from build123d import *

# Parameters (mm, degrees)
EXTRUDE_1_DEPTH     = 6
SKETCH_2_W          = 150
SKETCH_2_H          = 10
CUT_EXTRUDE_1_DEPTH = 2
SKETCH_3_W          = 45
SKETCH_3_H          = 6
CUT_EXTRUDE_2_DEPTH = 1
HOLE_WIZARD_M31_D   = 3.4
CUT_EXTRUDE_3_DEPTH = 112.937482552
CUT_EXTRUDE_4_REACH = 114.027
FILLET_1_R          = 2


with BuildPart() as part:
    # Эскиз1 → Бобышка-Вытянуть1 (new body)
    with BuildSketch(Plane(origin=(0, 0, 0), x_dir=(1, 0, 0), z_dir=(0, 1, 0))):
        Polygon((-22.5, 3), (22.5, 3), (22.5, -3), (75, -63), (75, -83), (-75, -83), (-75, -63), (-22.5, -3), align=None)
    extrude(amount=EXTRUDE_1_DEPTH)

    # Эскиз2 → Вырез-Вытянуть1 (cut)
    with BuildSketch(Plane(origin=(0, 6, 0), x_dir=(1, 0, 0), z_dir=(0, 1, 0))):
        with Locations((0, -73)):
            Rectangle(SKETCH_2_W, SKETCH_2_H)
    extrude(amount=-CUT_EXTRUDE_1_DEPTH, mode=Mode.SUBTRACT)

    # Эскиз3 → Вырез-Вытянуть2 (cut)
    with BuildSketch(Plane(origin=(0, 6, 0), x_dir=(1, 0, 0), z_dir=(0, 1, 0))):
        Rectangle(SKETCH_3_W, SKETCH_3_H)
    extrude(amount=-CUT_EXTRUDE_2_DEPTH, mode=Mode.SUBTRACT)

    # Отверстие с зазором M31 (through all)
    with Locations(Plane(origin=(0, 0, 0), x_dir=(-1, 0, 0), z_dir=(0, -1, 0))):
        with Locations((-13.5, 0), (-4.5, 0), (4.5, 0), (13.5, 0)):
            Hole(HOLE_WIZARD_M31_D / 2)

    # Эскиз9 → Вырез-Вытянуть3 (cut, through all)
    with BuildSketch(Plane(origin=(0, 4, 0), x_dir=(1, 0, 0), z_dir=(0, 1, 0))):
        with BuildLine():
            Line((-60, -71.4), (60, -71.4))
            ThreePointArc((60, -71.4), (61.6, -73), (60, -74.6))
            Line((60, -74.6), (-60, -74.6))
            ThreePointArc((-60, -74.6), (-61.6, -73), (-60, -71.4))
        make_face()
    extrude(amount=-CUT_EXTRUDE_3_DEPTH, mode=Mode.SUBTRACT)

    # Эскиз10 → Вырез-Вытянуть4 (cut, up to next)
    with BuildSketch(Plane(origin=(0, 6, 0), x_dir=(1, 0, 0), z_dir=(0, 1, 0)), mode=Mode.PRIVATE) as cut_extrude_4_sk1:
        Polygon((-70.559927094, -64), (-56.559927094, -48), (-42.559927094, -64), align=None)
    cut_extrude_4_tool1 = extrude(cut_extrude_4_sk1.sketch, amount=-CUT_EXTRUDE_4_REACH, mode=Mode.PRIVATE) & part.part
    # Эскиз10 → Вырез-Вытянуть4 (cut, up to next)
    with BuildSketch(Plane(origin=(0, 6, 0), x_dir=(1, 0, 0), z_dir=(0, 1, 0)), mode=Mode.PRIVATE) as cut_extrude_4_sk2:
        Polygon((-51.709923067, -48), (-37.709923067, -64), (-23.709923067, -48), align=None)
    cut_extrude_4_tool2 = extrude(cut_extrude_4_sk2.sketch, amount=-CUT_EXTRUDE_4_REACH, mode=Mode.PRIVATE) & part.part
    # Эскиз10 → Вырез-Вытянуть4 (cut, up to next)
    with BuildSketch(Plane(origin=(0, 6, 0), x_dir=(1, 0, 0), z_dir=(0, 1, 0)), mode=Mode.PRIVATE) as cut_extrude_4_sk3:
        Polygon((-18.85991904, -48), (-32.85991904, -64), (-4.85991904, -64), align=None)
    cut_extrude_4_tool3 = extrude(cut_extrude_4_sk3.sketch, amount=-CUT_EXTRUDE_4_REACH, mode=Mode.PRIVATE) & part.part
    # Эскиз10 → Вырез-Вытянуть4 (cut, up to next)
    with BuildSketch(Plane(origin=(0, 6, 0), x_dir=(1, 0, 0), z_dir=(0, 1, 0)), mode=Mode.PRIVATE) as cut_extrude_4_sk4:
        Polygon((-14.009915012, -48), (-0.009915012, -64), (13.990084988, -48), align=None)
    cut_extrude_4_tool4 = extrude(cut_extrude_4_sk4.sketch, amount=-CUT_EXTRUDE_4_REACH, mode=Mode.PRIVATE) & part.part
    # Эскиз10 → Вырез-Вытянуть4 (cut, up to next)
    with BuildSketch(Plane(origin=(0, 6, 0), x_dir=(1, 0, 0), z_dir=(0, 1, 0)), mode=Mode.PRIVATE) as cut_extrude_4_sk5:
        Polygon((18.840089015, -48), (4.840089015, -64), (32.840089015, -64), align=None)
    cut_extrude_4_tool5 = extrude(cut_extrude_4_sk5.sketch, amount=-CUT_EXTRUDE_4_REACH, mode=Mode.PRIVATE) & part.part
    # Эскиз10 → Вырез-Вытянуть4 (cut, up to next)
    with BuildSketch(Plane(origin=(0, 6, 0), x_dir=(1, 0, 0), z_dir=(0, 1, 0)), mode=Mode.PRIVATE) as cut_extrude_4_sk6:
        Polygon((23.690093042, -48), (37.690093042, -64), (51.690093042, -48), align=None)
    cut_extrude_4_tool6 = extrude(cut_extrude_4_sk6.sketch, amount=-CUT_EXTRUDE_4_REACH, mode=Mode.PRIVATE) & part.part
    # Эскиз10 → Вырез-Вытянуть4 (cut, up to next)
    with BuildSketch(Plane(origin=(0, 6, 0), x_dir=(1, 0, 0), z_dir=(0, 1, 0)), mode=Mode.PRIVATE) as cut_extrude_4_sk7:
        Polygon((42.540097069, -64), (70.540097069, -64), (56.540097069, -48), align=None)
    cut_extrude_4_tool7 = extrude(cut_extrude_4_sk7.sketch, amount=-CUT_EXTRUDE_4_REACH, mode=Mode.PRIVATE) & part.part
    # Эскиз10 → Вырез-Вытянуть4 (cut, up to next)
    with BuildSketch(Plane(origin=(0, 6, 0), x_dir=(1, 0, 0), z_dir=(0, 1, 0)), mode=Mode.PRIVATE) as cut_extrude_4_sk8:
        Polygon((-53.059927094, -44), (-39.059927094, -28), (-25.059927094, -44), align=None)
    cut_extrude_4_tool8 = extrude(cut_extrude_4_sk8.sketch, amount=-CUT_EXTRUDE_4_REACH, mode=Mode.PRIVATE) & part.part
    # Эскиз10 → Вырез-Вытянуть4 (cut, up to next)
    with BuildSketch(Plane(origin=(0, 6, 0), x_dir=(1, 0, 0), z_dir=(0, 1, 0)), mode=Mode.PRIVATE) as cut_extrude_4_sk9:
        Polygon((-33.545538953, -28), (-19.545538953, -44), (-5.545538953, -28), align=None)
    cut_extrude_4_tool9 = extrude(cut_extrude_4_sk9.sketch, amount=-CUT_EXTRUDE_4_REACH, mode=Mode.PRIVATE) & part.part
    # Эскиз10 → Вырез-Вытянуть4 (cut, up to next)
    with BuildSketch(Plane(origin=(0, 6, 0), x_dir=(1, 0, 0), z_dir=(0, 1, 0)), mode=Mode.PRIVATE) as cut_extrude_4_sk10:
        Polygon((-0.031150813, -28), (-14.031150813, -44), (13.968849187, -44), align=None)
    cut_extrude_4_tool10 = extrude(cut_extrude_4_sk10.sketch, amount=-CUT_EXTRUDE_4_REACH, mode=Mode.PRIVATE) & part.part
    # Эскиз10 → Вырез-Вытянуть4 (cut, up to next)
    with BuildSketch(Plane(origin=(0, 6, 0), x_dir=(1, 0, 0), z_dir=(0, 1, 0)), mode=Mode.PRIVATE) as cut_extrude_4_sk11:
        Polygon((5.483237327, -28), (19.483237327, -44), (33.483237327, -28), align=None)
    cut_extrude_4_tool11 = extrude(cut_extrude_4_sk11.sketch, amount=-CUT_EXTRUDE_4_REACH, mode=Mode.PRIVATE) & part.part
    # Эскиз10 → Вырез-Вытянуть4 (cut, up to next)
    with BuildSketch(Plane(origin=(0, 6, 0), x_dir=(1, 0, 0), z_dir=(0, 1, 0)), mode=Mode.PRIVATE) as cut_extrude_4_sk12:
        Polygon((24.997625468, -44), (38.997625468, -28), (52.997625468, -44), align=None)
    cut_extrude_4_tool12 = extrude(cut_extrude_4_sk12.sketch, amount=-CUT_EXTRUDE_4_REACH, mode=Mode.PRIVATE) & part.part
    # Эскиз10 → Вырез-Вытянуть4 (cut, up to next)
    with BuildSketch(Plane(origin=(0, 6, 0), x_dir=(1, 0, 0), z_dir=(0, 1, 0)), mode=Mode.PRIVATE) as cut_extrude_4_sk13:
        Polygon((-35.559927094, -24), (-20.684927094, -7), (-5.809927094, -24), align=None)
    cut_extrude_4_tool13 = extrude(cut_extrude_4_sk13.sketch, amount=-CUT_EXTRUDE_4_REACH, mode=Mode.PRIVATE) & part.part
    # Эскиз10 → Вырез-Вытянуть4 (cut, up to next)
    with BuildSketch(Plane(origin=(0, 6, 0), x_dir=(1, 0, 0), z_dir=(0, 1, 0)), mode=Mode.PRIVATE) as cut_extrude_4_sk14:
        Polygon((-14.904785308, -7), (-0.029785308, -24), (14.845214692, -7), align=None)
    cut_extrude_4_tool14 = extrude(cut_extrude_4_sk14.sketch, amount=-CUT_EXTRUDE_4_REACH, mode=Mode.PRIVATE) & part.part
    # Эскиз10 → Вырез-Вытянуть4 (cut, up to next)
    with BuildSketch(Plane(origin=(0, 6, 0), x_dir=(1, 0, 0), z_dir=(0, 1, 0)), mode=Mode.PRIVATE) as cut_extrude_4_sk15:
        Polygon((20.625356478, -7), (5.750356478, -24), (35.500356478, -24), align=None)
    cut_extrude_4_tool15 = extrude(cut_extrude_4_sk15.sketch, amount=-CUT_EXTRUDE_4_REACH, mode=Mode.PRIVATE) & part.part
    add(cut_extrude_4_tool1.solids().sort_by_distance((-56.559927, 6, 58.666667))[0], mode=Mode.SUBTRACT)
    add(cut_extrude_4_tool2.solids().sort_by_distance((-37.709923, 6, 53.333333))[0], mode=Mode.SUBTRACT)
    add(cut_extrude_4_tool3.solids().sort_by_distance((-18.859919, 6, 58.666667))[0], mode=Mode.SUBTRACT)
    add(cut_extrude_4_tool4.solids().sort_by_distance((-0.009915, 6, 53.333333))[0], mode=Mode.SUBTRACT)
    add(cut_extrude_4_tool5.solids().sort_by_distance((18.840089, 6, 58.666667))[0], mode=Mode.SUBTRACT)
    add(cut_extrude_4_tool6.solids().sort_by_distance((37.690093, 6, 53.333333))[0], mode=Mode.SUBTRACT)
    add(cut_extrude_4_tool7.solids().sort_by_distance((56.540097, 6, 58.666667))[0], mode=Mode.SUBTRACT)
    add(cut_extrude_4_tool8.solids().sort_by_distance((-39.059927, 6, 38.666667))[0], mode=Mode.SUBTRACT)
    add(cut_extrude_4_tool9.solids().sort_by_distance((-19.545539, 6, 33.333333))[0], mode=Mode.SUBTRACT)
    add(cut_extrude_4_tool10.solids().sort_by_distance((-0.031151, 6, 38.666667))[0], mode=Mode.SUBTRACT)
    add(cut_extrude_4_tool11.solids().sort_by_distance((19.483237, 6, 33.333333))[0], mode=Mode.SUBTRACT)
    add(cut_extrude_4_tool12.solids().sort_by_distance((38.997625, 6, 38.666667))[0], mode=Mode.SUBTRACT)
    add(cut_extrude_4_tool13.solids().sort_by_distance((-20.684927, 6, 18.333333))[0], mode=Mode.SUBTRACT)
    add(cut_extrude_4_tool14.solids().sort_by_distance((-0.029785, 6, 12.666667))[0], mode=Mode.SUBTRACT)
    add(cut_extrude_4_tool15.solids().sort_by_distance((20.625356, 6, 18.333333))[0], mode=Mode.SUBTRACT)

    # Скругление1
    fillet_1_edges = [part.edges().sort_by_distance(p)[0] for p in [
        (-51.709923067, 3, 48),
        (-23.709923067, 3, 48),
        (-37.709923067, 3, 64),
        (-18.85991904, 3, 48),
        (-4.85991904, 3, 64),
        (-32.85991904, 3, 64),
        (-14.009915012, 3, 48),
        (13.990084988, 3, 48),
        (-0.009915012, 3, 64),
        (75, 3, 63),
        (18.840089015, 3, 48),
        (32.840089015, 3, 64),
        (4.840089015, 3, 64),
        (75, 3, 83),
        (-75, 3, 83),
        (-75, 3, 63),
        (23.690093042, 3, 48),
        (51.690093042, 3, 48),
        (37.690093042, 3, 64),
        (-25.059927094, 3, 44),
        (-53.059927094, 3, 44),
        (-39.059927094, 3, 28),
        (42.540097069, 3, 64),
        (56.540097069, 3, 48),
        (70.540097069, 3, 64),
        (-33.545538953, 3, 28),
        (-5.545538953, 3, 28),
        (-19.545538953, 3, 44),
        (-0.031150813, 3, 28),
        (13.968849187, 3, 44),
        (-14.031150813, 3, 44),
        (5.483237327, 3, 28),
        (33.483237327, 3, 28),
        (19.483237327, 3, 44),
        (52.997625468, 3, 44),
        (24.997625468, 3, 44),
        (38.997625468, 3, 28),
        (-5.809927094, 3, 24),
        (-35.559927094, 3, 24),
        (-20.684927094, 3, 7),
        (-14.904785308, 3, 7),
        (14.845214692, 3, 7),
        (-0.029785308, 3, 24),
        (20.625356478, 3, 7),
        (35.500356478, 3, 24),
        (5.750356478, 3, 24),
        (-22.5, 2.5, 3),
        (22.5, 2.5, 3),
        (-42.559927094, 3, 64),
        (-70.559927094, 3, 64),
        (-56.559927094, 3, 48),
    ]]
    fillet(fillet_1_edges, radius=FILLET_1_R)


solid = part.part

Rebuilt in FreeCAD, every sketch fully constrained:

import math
import FreeCAD as App
import Part
import Sketcher

V = App.Vector
Q = App.Units.Quantity


def edges_at(feature, points):
    """Names of the edges that pass closest to the given points."""
    edges = feature.Shape.Edges
    near = lambda p: min(range(len(edges)), key=lambda i: edges[i].distToShape(Part.Vertex(*p))[0])
    return sorted({f"Edge{near(p) + 1}" for p in points})


def add_polygon(sketch, points):
    """Adds a closed chain of lines whose ends are joined by coincident constraints."""
    first, n = sketch.GeometryCount, len(points)
    for a, b in zip(points, points[1:] + points[:1]):
        sketch.addGeometry(Part.LineSegment(App.Vector(*a, 0), App.Vector(*b, 0)), False)
    for i in range(n):
        sketch.addConstraint(Sketcher.Constraint("Coincident", first + i, 2, first + (i + 1) % n, 1))

doc = App.newDocument("Part")
body = doc.addObject("PartDesign::Body", "Body")

# Sketch on XZ plane
sketch1 = doc.addObject("Sketcher::SketchObject", "Sketch")
body.addObject(sketch1)
sketch1.AttachmentSupport = (doc.XZ_Plane, [""])
sketch1.MapMode = "FlatFace"
add_polygon(sketch1, [(22, -3), (-22, -3), (-22, 3), (-75, 63), (-75, 83), (75, 83), (75, 63), (22, 3)])  # lines 0-7
sketch1.addConstraint([
    Sketcher.Constraint("Horizontal", 0),
    Sketcher.Constraint("Vertical", 1),
    Sketcher.Constraint("Vertical", 3),
    Sketcher.Constraint("Horizontal", 4),
    Sketcher.Constraint("Vertical", 5),
    Sketcher.Constraint("Vertical", 7),
    Sketcher.Constraint("Symmetric", 0, 2, 6, 2, -1, 1),
    Sketcher.Constraint("Symmetric", 2, 2, 5, 2, -2),
    Sketcher.Constraint("Horizontal", 1, 2, 6, 2),
    Sketcher.Constraint("DistanceX", 0, 2, 0, 1, Q("45 mm")),
    Sketcher.Constraint("DistanceX", 4, 1, 4, 2, Q("150 mm")),
    Sketcher.Constraint("DistanceY", 1, 1, 1, 2, Q("6 mm")),
    Sketcher.Constraint("DistanceY", 3, 1, 3, 2, Q("20 mm")),
    Sketcher.Constraint("DistanceY", -1, 1, 2, 2, Q("63 mm")),
])
pad1 = doc.addObject("PartDesign::Pad", "Pad")
body.addObject(pad1)
pad1.Profile = sketch1
pad1.Length = 6
pad1.Reversed = True

# Sketch on XZ plane
sketch2 = doc.addObject("Sketcher::SketchObject", "Sketch001")
body.addObject(sketch2)
sketch2.AttachmentSupport = (doc.XZ_Plane, [""])
sketch2.MapMode = "FlatFace"
sketch2.AttachmentOffset = App.Placement(V(0, 0, -6), App.Rotation())
add_polygon(sketch2, [(-75, 68), (-75, 78), (75, 78), (75, 68)])  # lines 0-3
sketch2.addConstraint([
    Sketcher.Constraint("Vertical", 0),
    Sketcher.Constraint("Horizontal", 1),
    Sketcher.Constraint("Vertical", 2),
    Sketcher.Constraint("Horizontal", 3),
    Sketcher.Constraint("DistanceX", 1, 1, 1, 2, Q("150 mm")),
    Sketcher.Constraint("DistanceY", 0, 1, 0, 2, Q("10 mm")),
    Sketcher.Constraint("DistanceX", 0, 2, -1, 1, Q("75 mm")),
    Sketcher.Constraint("DistanceY", -1, 1, 0, 2, Q("78 mm")),
])
pocket1 = doc.addObject("PartDesign::Pocket", "Pocket")
body.addObject(pocket1)
pocket1.Profile = sketch2
pocket1.Length = 2
pocket1.Reversed = True

# Sketch on XZ plane
sketch3 = doc.addObject("Sketcher::SketchObject", "Sketch002")
body.addObject(sketch3)
sketch3.AttachmentSupport = (doc.XZ_Plane, [""])
sketch3.MapMode = "FlatFace"
sketch3.AttachmentOffset = App.Placement(V(0, 0, -6), App.Rotation())
add_polygon(sketch3, [(-22, -3), (-22, 3), (22, 3), (22, -3)])  # lines 0-3
sketch3.addConstraint([
    Sketcher.Constraint("Vertical", 0),
    Sketcher.Constraint("Horizontal", 1),
    Sketcher.Constraint("Vertical", 2),
    Sketcher.Constraint("Horizontal", 3),
    Sketcher.Constraint("Symmetric", 0, 2, 2, 2, -1, 1),
    Sketcher.Constraint("DistanceX", 1, 1, 1, 2, Q("45 mm")),
    Sketcher.Constraint("DistanceY", 0, 1, 0, 2, Q("6 mm")),
])
pocket2 = doc.addObject("PartDesign::Pocket", "Pocket001")
body.addObject(pocket2)
pocket2.Profile = sketch3
pocket2.Length = 1
pocket2.Reversed = True

# Sketch on XZ plane
sketch4 = doc.addObject("Sketcher::SketchObject", "Sketch003")
body.addObject(sketch4)
sketch4.AttachmentSupport = (doc.XZ_Plane, [""])
sketch4.MapMode = "FlatFace"
sketch4.addGeometry([
    Part.Circle(V(13.5, 0, 0), V(0, 0, 1), 1.7),
    Part.Circle(V(4.5, 0, 0), V(0, 0, 1), 1.7),
    Part.Circle(V(-4.5, 0, 0), V(0, 0, 1), 1.7),
    Part.Circle(V(-13.5, 0, 0), V(0, 0, 1), 1.7),
], False)
sketch4.addConstraint([
    Sketcher.Constraint("Equal", 0, 1),
    Sketcher.Constraint("Equal", 1, 2),
    Sketcher.Constraint("Equal", 2, 3),
    Sketcher.Constraint("Symmetric", 1, 3, 2, 3, -1, 1),
    Sketcher.Constraint("Symmetric", 0, 3, 3, 3, -1, 1),
    Sketcher.Constraint("PointOnObject", 0, 3, -1),
    Sketcher.Constraint("PointOnObject", 1, 3, -1),
    Sketcher.Constraint("Diameter", 0, Q("3.4 mm")),
    Sketcher.Constraint("DistanceX", 1, 3, 0, 3, Q("9 mm")),
    Sketcher.Constraint("DistanceX", 2, 3, 1, 3, Q("9 mm")),
])
doc.recompute()
hole = doc.addObject("PartDesign::Hole", "Hole")
body.addObject(hole)
hole.Profile = sketch4
hole.ThreadType = "None"
hole.Diameter = 3.4
hole.DepthType = "ThroughAll"

# Sketch on XZ plane
sketch5 = doc.addObject("Sketcher::SketchObject", "Sketch004")
body.addObject(sketch5)
sketch5.AttachmentSupport = (doc.XZ_Plane, [""])
sketch5.MapMode = "FlatFace"
sketch5.AttachmentOffset = App.Placement(V(0, 0, -4), App.Rotation())
sketch5.addGeometry([
    Part.LineSegment(V(60, 71.4, 0), V(-60, 71.4, 0)),
    Part.ArcOfCircle(Part.Circle(V(-60, 73, 0), V(0, 0, 1), 1.6), math.radians(90), math.radians(270)),
    Part.LineSegment(V(-60, 74.6, 0), V(60, 74.6, 0)),
    Part.ArcOfCircle(Part.Circle(V(60, 73, 0), V(0, 0, 1), 1.6), math.radians(-90), math.radians(90)),
], False)
sketch5.addConstraint([
    Sketcher.Constraint("Tangent", 0, 2, 1, 2),
    Sketcher.Constraint("Tangent", 1, 1, 2, 1),
    Sketcher.Constraint("Tangent", 2, 2, 3, 2),
    Sketcher.Constraint("Tangent", 3, 1, 0, 1),
    Sketcher.Constraint("Horizontal", 0),
    Sketcher.Constraint("Horizontal", 2),
    Sketcher.Constraint("Radius", 1, Q("1.6 mm")),
    Sketcher.Constraint("DistanceX", 0, 2, 0, 1, Q("120 mm")),
    Sketcher.Constraint("DistanceX", 1, 3, -1, 1, Q("60 mm")),
    Sketcher.Constraint("DistanceY", -1, 1, 1, 3, Q("73 mm")),
])
pocket3 = doc.addObject("PartDesign::Pocket", "Pocket002")
body.addObject(pocket3)
pocket3.Profile = sketch5
pocket3.Type = "ThroughAll"
pocket3.Reversed = True

# Sketch on XZ plane
sketch6 = doc.addObject("Sketcher::SketchObject", "Sketch005")
body.addObject(sketch6)
sketch6.AttachmentSupport = (doc.XZ_Plane, [""])
sketch6.MapMode = "FlatFace"
sketch6.AttachmentOffset = App.Placement(V(0, 0, -6), App.Rotation())
add_polygon(sketch6, [(-57, 48), (-71, 64), (-43, 64)])  # lines 0-2
sketch6.addConstraint([
    Sketcher.Constraint("Horizontal", 1),
    Sketcher.Constraint("Equal", 0, 2),
    Sketcher.Constraint("DistanceX", 1, 1, 1, 2, Q("28 mm")),
    Sketcher.Constraint("DistanceY", -1, 1, 0, 2, Q("64 mm")),
    Sketcher.Constraint("DistanceY", -1, 1, 2, 2, Q("48 mm")),
    Sketcher.Constraint("DistanceX", 0, 2, -1, 1, Q("70.559927 mm")),
])
pocket4 = doc.addObject("PartDesign::Pocket", "Pocket003")
body.addObject(pocket4)
pocket4.Profile = sketch6
pocket4.Type = "UpToFirst"
pocket4.Reversed = True

# Sketch on XZ plane
sketch7 = doc.addObject("Sketcher::SketchObject", "Sketch006")
body.addObject(sketch7)
sketch7.AttachmentSupport = (doc.XZ_Plane, [""])
sketch7.MapMode = "FlatFace"
sketch7.AttachmentOffset = App.Placement(V(0, 0, -6), App.Rotation())
add_polygon(sketch7, [(-52, 48), (-38, 64), (-24, 48)])  # lines 0-2
sketch7.addConstraint([
    Sketcher.Constraint("Horizontal", 2),
    Sketcher.Constraint("Equal", 0, 1),
    Sketcher.Constraint("DistanceX", 2, 2, 2, 1, Q("28 mm")),
    Sketcher.Constraint("DistanceY", -1, 1, 0, 2, Q("64 mm")),
    Sketcher.Constraint("DistanceY", -1, 1, 1, 2, Q("48 mm")),
    Sketcher.Constraint("DistanceX", 0, 2, -1, 1, Q("37.709923 mm")),
])
pocket5 = doc.addObject("PartDesign::Pocket", "Pocket004")
body.addObject(pocket5)
pocket5.Profile = sketch7
pocket5.Type = "UpToFirst"
pocket5.Reversed = True

# Sketch on XZ plane
sketch8 = doc.addObject("Sketcher::SketchObject", "Sketch007")
body.addObject(sketch8)
sketch8.AttachmentSupport = (doc.XZ_Plane, [""])
sketch8.MapMode = "FlatFace"
sketch8.AttachmentOffset = App.Placement(V(0, 0, -6), App.Rotation())
add_polygon(sketch8, [(-19, 48), (-33, 64), (-5, 64)])  # lines 0-2
sketch8.addConstraint([
    Sketcher.Constraint("Horizontal", 1),
    Sketcher.Constraint("Equal", 0, 2),
    Sketcher.Constraint("DistanceX", 1, 1, 1, 2, Q("28 mm")),
    Sketcher.Constraint("DistanceY", -1, 1, 0, 2, Q("64 mm")),
    Sketcher.Constraint("DistanceY", -1, 1, 2, 2, Q("48 mm")),
    Sketcher.Constraint("DistanceX", 0, 2, -1, 1, Q("32.859919 mm")),
])
pocket6 = doc.addObject("PartDesign::Pocket", "Pocket005")
body.addObject(pocket6)
pocket6.Profile = sketch8
pocket6.Type = "UpToFirst"
pocket6.Reversed = True

# Sketch on XZ plane
sketch9 = doc.addObject("Sketcher::SketchObject", "Sketch008")
body.addObject(sketch9)
sketch9.AttachmentSupport = (doc.XZ_Plane, [""])
sketch9.MapMode = "FlatFace"
sketch9.AttachmentOffset = App.Placement(V(0, 0, -6), App.Rotation())
add_polygon(sketch9, [(-14, 48), (0, 64), (14, 48)])  # lines 0-2
sketch9.addConstraint([
    Sketcher.Constraint("Horizontal", 2),
    Sketcher.Constraint("Equal", 0, 1),
    Sketcher.Constraint("DistanceX", 2, 2, 2, 1, Q("28 mm")),
    Sketcher.Constraint("DistanceY", -1, 1, 0, 2, Q("64 mm")),
    Sketcher.Constraint("DistanceY", -1, 1, 1, 2, Q("48 mm")),
    Sketcher.Constraint("DistanceX", 0, 2, -1, 1, Q("0.009915 mm")),
])
pocket7 = doc.addObject("PartDesign::Pocket", "Pocket006")
body.addObject(pocket7)
pocket7.Profile = sketch9
pocket7.Type = "UpToFirst"
pocket7.Reversed = True

# Sketch on XZ plane
sketch10 = doc.addObject("Sketcher::SketchObject", "Sketch009")
body.addObject(sketch10)
sketch10.AttachmentSupport = (doc.XZ_Plane, [""])
sketch10.MapMode = "FlatFace"
sketch10.AttachmentOffset = App.Placement(V(0, 0, -6), App.Rotation())
add_polygon(sketch10, [(19, 48), (5, 64), (33, 64)])  # lines 0-2
sketch10.addConstraint([
    Sketcher.Constraint("Horizontal", 1),
    Sketcher.Constraint("Equal", 0, 2),
    Sketcher.Constraint("DistanceX", 1, 1, 1, 2, Q("28 mm")),
    Sketcher.Constraint("DistanceY", -1, 1, 0, 2, Q("64 mm")),
    Sketcher.Constraint("DistanceY", -1, 1, 2, 2, Q("48 mm")),
    Sketcher.Constraint("DistanceX", -1, 1, 0, 2, Q("4.840089 mm")),
])
pocket8 = doc.addObject("PartDesign::Pocket", "Pocket007")
body.addObject(pocket8)
pocket8.Profile = sketch10
pocket8.Type = "UpToFirst"
pocket8.Reversed = True

# Sketch on XZ plane
sketch11 = doc.addObject("Sketcher::SketchObject", "Sketch010")
body.addObject(sketch11)
sketch11.AttachmentSupport = (doc.XZ_Plane, [""])
sketch11.MapMode = "FlatFace"
sketch11.AttachmentOffset = App.Placement(V(0, 0, -6), App.Rotation())
add_polygon(sketch11, [(24, 48), (38, 64), (52, 48)])  # lines 0-2
sketch11.addConstraint([
    Sketcher.Constraint("Horizontal", 2),
    Sketcher.Constraint("Equal", 0, 1),
    Sketcher.Constraint("DistanceX", 2, 2, 2, 1, Q("28 mm")),
    Sketcher.Constraint("DistanceY", -1, 1, 0, 2, Q("64 mm")),
    Sketcher.Constraint("DistanceY", -1, 1, 1, 2, Q("48 mm")),
    Sketcher.Constraint("DistanceX", -1, 1, 0, 2, Q("37.690093 mm")),
])
pocket9 = doc.addObject("PartDesign::Pocket", "Pocket008")
body.addObject(pocket9)
pocket9.Profile = sketch11
pocket9.Type = "UpToFirst"
pocket9.Reversed = True

# Sketch on XZ plane
sketch12 = doc.addObject("Sketcher::SketchObject", "Sketch011")
body.addObject(sketch12)
sketch12.AttachmentSupport = (doc.XZ_Plane, [""])
sketch12.MapMode = "FlatFace"
sketch12.AttachmentOffset = App.Placement(V(0, 0, -6), App.Rotation())
add_polygon(sketch12, [(43, 64), (71, 64), (57, 48)])  # lines 0-2
sketch12.addConstraint([
    Sketcher.Constraint("Horizontal", 0),
    Sketcher.Constraint("Equal", 1, 2),
    Sketcher.Constraint("DistanceX", 0, 1, 0, 2, Q("28 mm")),
    Sketcher.Constraint("DistanceY", -1, 1, 0, 2, Q("64 mm")),
    Sketcher.Constraint("DistanceY", -1, 1, 1, 2, Q("48 mm")),
    Sketcher.Constraint("DistanceX", -1, 1, 0, 2, Q("70.540097 mm")),
])
pocket10 = doc.addObject("PartDesign::Pocket", "Pocket009")
body.addObject(pocket10)
pocket10.Profile = sketch12
pocket10.Type = "UpToFirst"
pocket10.Reversed = True

# Sketch on XZ plane
sketch13 = doc.addObject("Sketcher::SketchObject", "Sketch012")
body.addObject(sketch13)
sketch13.AttachmentSupport = (doc.XZ_Plane, [""])
sketch13.MapMode = "FlatFace"
sketch13.AttachmentOffset = App.Placement(V(0, 0, -6), App.Rotation())
add_polygon(sketch13, [(-39, 28), (-53, 44), (-25, 44)])  # lines 0-2
sketch13.addConstraint([
    Sketcher.Constraint("Horizontal", 1),
    Sketcher.Constraint("Equal", 0, 2),
    Sketcher.Constraint("DistanceX", 1, 1, 1, 2, Q("28 mm")),
    Sketcher.Constraint("DistanceY", -1, 1, 0, 2, Q("44 mm")),
    Sketcher.Constraint("DistanceY", -1, 1, 2, 2, Q("28 mm")),
    Sketcher.Constraint("DistanceX", 0, 2, -1, 1, Q("53.059927 mm")),
])
pocket11 = doc.addObject("PartDesign::Pocket", "Pocket010")
body.addObject(pocket11)
pocket11.Profile = sketch13
pocket11.Type = "UpToFirst"
pocket11.Reversed = True

# Sketch on XZ plane
sketch14 = doc.addObject("Sketcher::SketchObject", "Sketch013")
body.addObject(sketch14)
sketch14.AttachmentSupport = (doc.XZ_Plane, [""])
sketch14.MapMode = "FlatFace"
sketch14.AttachmentOffset = App.Placement(V(0, 0, -6), App.Rotation())
add_polygon(sketch14, [(-34, 28), (-20, 44), (-6, 28)])  # lines 0-2
sketch14.addConstraint([
    Sketcher.Constraint("Horizontal", 2),
    Sketcher.Constraint("Equal", 0, 1),
    Sketcher.Constraint("DistanceX", 2, 2, 2, 1, Q("28 mm")),
    Sketcher.Constraint("DistanceY", -1, 1, 0, 2, Q("44 mm")),
    Sketcher.Constraint("DistanceY", -1, 1, 1, 2, Q("28 mm")),
    Sketcher.Constraint("DistanceX", 0, 2, -1, 1, Q("19.545539 mm")),
])
pocket12 = doc.addObject("PartDesign::Pocket", "Pocket011")
body.addObject(pocket12)
pocket12.Profile = sketch14
pocket12.Type = "UpToFirst"
pocket12.Reversed = True

# Sketch on XZ plane
sketch15 = doc.addObject("Sketcher::SketchObject", "Sketch014")
body.addObject(sketch15)
sketch15.AttachmentSupport = (doc.XZ_Plane, [""])
sketch15.MapMode = "FlatFace"
sketch15.AttachmentOffset = App.Placement(V(0, 0, -6), App.Rotation())
add_polygon(sketch15, [(0, 28), (-14, 44), (14, 44)])  # lines 0-2
sketch15.addConstraint([
    Sketcher.Constraint("Horizontal", 1),
    Sketcher.Constraint("Equal", 0, 2),
    Sketcher.Constraint("DistanceX", 1, 1, 1, 2, Q("28 mm")),
    Sketcher.Constraint("DistanceY", -1, 1, 0, 2, Q("44 mm")),
    Sketcher.Constraint("DistanceY", -1, 1, 2, 2, Q("28 mm")),
    Sketcher.Constraint("DistanceX", 0, 2, -1, 1, Q("14.031151 mm")),
])
pocket13 = doc.addObject("PartDesign::Pocket", "Pocket012")
body.addObject(pocket13)
pocket13.Profile = sketch15
pocket13.Type = "UpToFirst"
pocket13.Reversed = True

# Sketch on XZ plane
sketch16 = doc.addObject("Sketcher::SketchObject", "Sketch015")
body.addObject(sketch16)
sketch16.AttachmentSupport = (doc.XZ_Plane, [""])
sketch16.MapMode = "FlatFace"
sketch16.AttachmentOffset = App.Placement(V(0, 0, -6), App.Rotation())
add_polygon(sketch16, [(5, 28), (19, 44), (33, 28)])  # lines 0-2
sketch16.addConstraint([
    Sketcher.Constraint("Horizontal", 2),
    Sketcher.Constraint("Equal", 0, 1),
    Sketcher.Constraint("DistanceX", 2, 2, 2, 1, Q("28 mm")),
    Sketcher.Constraint("DistanceY", -1, 1, 0, 2, Q("44 mm")),
    Sketcher.Constraint("DistanceY", -1, 1, 1, 2, Q("28 mm")),
    Sketcher.Constraint("DistanceX", -1, 1, 0, 2, Q("19.483237 mm")),
])
pocket14 = doc.addObject("PartDesign::Pocket", "Pocket013")
body.addObject(pocket14)
pocket14.Profile = sketch16
pocket14.Type = "UpToFirst"
pocket14.Reversed = True

# Sketch on XZ plane
sketch17 = doc.addObject("Sketcher::SketchObject", "Sketch016")
body.addObject(sketch17)
sketch17.AttachmentSupport = (doc.XZ_Plane, [""])
sketch17.MapMode = "FlatFace"
sketch17.AttachmentOffset = App.Placement(V(0, 0, -6), App.Rotation())
add_polygon(sketch17, [(39, 28), (25, 44), (53, 44)])  # lines 0-2
sketch17.addConstraint([
    Sketcher.Constraint("Horizontal", 1),
    Sketcher.Constraint("Equal", 0, 2),
    Sketcher.Constraint("DistanceX", 1, 1, 1, 2, Q("28 mm")),
    Sketcher.Constraint("DistanceY", -1, 1, 0, 2, Q("44 mm")),
    Sketcher.Constraint("DistanceY", -1, 1, 2, 2, Q("28 mm")),
    Sketcher.Constraint("DistanceX", -1, 1, 0, 2, Q("24.997625 mm")),
])
pocket15 = doc.addObject("PartDesign::Pocket", "Pocket014")
body.addObject(pocket15)
pocket15.Profile = sketch17
pocket15.Type = "UpToFirst"
pocket15.Reversed = True

# Sketch on XZ plane
sketch18 = doc.addObject("Sketcher::SketchObject", "Sketch017")
body.addObject(sketch18)
sketch18.AttachmentSupport = (doc.XZ_Plane, [""])
sketch18.MapMode = "FlatFace"
sketch18.AttachmentOffset = App.Placement(V(0, 0, -6), App.Rotation())
add_polygon(sketch18, [(-21, 7), (-36, 24), (-6, 24)])  # lines 0-2
sketch18.addConstraint([
    Sketcher.Constraint("Horizontal", 1),
    Sketcher.Constraint("Equal", 0, 2),
    Sketcher.Constraint("DistanceY", -1, 1, 0, 2, Q("24 mm")),
    Sketcher.Constraint("DistanceY", -1, 1, 2, 2, Q("7 mm")),
    Sketcher.Constraint("DistanceX", 1, 1, 1, 2, Q("29.75 mm")),
    Sketcher.Constraint("DistanceX", 0, 2, -1, 1, Q("35.559927 mm")),
])
pocket16 = doc.addObject("PartDesign::Pocket", "Pocket015")
body.addObject(pocket16)
pocket16.Profile = sketch18
pocket16.Type = "UpToFirst"
pocket16.Reversed = True

# Sketch on XZ plane
sketch19 = doc.addObject("Sketcher::SketchObject", "Sketch018")
body.addObject(sketch19)
sketch19.AttachmentSupport = (doc.XZ_Plane, [""])
sketch19.MapMode = "FlatFace"
sketch19.AttachmentOffset = App.Placement(V(0, 0, -6), App.Rotation())
add_polygon(sketch19, [(-15, 7), (0, 24), (15, 7)])  # lines 0-2
sketch19.addConstraint([
    Sketcher.Constraint("Horizontal", 2),
    Sketcher.Constraint("Equal", 0, 1),
    Sketcher.Constraint("DistanceY", -1, 1, 0, 2, Q("24 mm")),
    Sketcher.Constraint("DistanceY", -1, 1, 1, 2, Q("7 mm")),
    Sketcher.Constraint("DistanceX", 2, 2, 2, 1, Q("29.75 mm")),
    Sketcher.Constraint("DistanceX", 0, 2, -1, 1, Q("0.029785 mm")),
])
pocket17 = doc.addObject("PartDesign::Pocket", "Pocket016")
body.addObject(pocket17)
pocket17.Profile = sketch19
pocket17.Type = "UpToFirst"
pocket17.Reversed = True

# Sketch on XZ plane
sketch20 = doc.addObject("Sketcher::SketchObject", "Sketch019")
body.addObject(sketch20)
sketch20.AttachmentSupport = (doc.XZ_Plane, [""])
sketch20.MapMode = "FlatFace"
sketch20.AttachmentOffset = App.Placement(V(0, 0, -6), App.Rotation())
add_polygon(sketch20, [(21, 7), (6, 24), (36, 24)])  # lines 0-2
sketch20.addConstraint([
    Sketcher.Constraint("Horizontal", 1),
    Sketcher.Constraint("Equal", 0, 2),
    Sketcher.Constraint("DistanceY", -1, 1, 0, 2, Q("24 mm")),
    Sketcher.Constraint("DistanceY", -1, 1, 2, 2, Q("7 mm")),
    Sketcher.Constraint("DistanceX", 1, 1, 1, 2, Q("29.75 mm")),
    Sketcher.Constraint("DistanceX", -1, 1, 0, 2, Q("5.750356 mm")),
])
pocket18 = doc.addObject("PartDesign::Pocket", "Pocket017")
body.addObject(pocket18)
pocket18.Profile = sketch20
pocket18.Type = "UpToFirst"
pocket18.Reversed = True
doc.recompute()

fillet = doc.addObject("PartDesign::Fillet", "Fillet")
body.addObject(fillet)
fillet.Base = (pocket18, edges_at(pocket18, [
    (-51.71, 3, 48),
    (-23.71, 3, 48),
    (-37.71, 3, 64),
    (-18.86, 3, 48),
    (-4.86, 3, 64),
    (-32.86, 3, 64),
    (-14.01, 3, 48),
    (13.99, 3, 48),
    (-0.01, 3, 64),
    (75, 3, 63),
    (18.84, 3, 48),
    (32.84, 3, 64),
    (4.84, 3, 64),
    (75, 3, 83),
    (-75, 3, 83),
    (-75, 3, 63),
    (23.69, 3, 48),
    (51.69, 3, 48),
    (37.69, 3, 64),
    (-25.06, 3, 44),
    (-53.06, 3, 44),
    (-39.06, 3, 28),
    (42.54, 3, 64),
    (56.54, 3, 48),
    (70.54, 3, 64),
    (-33.546, 3, 28),
    (-5.546, 3, 28),
    (-19.546, 3, 44),
    (-0.031, 3, 28),
    (13.969, 3, 44),
    (-14.031, 3, 44),
    (5.483, 3, 28),
    (33.483, 3, 28),
    (19.483, 3, 44),
    (52.998, 3, 44),
    (24.998, 3, 44),
    (38.998, 3, 28),
    (-5.81, 3, 24),
    (-35.56, 3, 24),
    (-20.685, 3, 7),
    (-14.905, 3, 7),
    (14.845, 3, 7),
    (-0.03, 3, 24),
    (20.625, 3, 7),
    (35.5, 3, 24),
    (5.75, 3, 24),
    (-22.5, 2.5, 3),
    (22.5, 2.5, 3),
    (-42.56, 3, 64),
    (-70.56, 3, 64),
    (-56.56, 3, 48),
]))
fillet.Radius = 2

doc.recompute()
